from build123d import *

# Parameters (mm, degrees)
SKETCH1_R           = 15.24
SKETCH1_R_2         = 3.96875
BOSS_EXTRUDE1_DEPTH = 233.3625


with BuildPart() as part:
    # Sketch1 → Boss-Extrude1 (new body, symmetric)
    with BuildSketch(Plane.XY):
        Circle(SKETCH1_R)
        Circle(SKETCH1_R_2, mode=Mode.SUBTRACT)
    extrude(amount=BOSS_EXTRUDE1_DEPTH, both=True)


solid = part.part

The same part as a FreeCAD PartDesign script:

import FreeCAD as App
import Part
import Sketcher
from FreeCAD import Vector
Q = App.Units.Quantity

doc = App.newDocument("Part")
body = doc.addObject("PartDesign::Body", "Body")

sketch1 = body.newObject("Sketcher::SketchObject", "Sketch")
sketch1.AttachmentSupport = (doc.getObject("XY_Plane"), [""])
sketch1.MapMode = "FlatFace"
sketch1.addGeometry([
    Part.Circle(Vector(0, 0, 0), Vector(0, 0, 1), 15.24),
    Part.Circle(Vector(0, 0, 0), Vector(0, 0, 1), 3.96875),
], False)
sketch1.addConstraint([
    Sketcher.Constraint("Coincident", 0, 3, -1, 1),
    Sketcher.Constraint("Coincident", 1, 3, -1, 1),
    Sketcher.Constraint("Diameter", 0, Q("1.2 in")),
    Sketcher.Constraint("Diameter", 1, Q("0.3125 in")),
])
pad1 = body.newObject("PartDesign::Pad", "Pad")
pad1.Profile = sketch1
pad1.Length = Q("18.375 in")
pad1.Midplane = True

doc.recompute()
